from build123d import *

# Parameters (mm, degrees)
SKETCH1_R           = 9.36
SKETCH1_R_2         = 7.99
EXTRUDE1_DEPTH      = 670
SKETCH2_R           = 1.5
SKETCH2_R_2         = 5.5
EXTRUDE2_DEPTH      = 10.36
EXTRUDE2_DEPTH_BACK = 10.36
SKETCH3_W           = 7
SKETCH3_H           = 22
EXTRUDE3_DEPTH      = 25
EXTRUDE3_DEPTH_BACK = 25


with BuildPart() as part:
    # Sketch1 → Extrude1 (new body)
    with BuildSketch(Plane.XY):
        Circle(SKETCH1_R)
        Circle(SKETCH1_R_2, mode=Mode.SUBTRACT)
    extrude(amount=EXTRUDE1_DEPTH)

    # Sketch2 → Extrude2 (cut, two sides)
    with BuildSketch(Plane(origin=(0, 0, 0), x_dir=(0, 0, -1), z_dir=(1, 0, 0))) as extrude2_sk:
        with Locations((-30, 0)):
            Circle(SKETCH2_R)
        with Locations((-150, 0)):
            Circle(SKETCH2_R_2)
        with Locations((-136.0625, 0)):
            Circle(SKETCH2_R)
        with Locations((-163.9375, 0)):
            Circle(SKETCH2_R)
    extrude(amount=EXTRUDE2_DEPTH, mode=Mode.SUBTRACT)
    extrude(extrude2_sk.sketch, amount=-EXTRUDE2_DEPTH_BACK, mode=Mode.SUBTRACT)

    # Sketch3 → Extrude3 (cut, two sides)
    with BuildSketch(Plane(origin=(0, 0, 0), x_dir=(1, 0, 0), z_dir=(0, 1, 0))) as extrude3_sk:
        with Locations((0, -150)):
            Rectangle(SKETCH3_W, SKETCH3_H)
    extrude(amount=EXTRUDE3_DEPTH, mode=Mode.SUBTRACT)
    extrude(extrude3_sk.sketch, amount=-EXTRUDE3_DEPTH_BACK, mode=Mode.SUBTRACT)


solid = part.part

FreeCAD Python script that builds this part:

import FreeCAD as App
import Part
import Sketcher
from FreeCAD import Vector
Q = App.Units.Quantity

doc = App.newDocument("Part")
params = doc.addObject("Spreadsheet::Sheet", "Params")
for row, (alias, value) in enumerate([
    ("sketch1_diameter", "18.72 mm"),
    ("sketch1_diameter2", "15.98 mm"),
    ("pad1_length", "670 mm"),
    ("sketch2_diameter", "3 mm"),
    ("sketch2_diameter2", "11 mm"),
    ("sketch3_width", "7 mm"),
    ("sketch3_height", "22 mm"),
], start=1):
    params.set(f"A{row}", alias)
    params.set(f"B{row}", "=" + value)
    params.setAlias(f"B{row}", alias)

body = doc.addObject("PartDesign::Body", "Body")

# Sketch on XY plane
sketch1 = body.newObject("Sketcher::SketchObject", "Sketch")
sketch1.AttachmentSupport = (doc.getObject("XY_Plane"), [""])
sketch1.MapMode = "FlatFace"
sketch1.addGeometry([
    Part.Circle(Vector(0, 0, 0), Vector(0, 0, 1), 9),
    Part.Circle(Vector(0, 0, 0), Vector(0, 0, 1), 8),
], False)
sketch1.addConstraint([
    Sketcher.Constraint("Coincident", 0, 3, -1, 1),
    Sketcher.Constraint("Coincident", 1, 3, -1, 1),
    Sketcher.Constraint("Diameter", 0, Q("18.72 mm")),
    Sketcher.Constraint("Diameter", 1, Q("15.98 mm")),
])
sketch1.setExpression("Constraints[2]", "Params.sketch1_diameter")
sketch1.setExpression("Constraints[3]", "Params.sketch1_diameter2")
pad1 = body.newObject("PartDesign::Pad", "Pad")
pad1.Profile = sketch1
pad1.setExpression("Length", "Params.pad1_length")

# Sketch on YZ plane
sketch2 = body.newObject("Sketcher::SketchObject", "Sketch001")
sketch2.AttachmentSupport = (doc.getObject("YZ_Plane"), [""])
sketch2.MapMode = "FlatFace"
sketch2.addGeometry([
    Part.Circle(Vector(0, 30, 0), Vector(0, 0, 1), 1.5),
    Part.Circle(Vector(0, 150, 0), Vector(0, 0, 1), 5.5),
    Part.Circle(Vector(0, 136.1, 0), Vector(0, 0, 1), 1.5),
    Part.Circle(Vector(0, 163.9, 0), Vector(0, 0, 1), 1.5),
], False)
sketch2.addConstraint([
    Sketcher.Constraint("Equal", 0, 2),
    Sketcher.Constraint("Equal", 2, 3),
    Sketcher.Constraint("PointOnObject", 0, 3, -2),
    Sketcher.Constraint("PointOnObject", 1, 3, -2),
    Sketcher.Constraint("PointOnObject", 2, 3, -2),
    Sketcher.Constraint("PointOnObject", 3, 3, -2),
    Sketcher.Constraint("Diameter", 0, Q("3 mm")),
    Sketcher.Constraint("Diameter", 1, Q("11 mm")),
    Sketcher.Constraint("DistanceY", -1, 1, 0, 3, Q("30 mm")),
    Sketcher.Constraint("DistanceY", -1, 1, 1, 3, Q("150 mm")),
    Sketcher.Constraint("DistanceY", 2, 3, 3, 3, Q("27.875 mm")),
    Sketcher.Constraint("DistanceY", -1, 1, 2, 3, Q("136.0625 mm")),
])
sketch2.setExpression("Constraints[6]", "Params.sketch2_diameter")
sketch2.setExpression("Constraints[7]", "Params.sketch2_diameter2")
pocket1 = body.newObject("PartDesign::Pocket", "Pocket")
pocket1.Profile = sketch2
pocket1.Type = "ThroughAll"
pocket1.Midplane = True

# Sketch on XZ plane
sketch3 = body.newObject("Sketcher::SketchObject", "Sketch002")
sketch3.AttachmentSupport = (doc.getObject("XZ_Plane"), [""])
sketch3.MapMode = "FlatFace"
sketch3.addGeometry([
    Part.LineSegment(Vector(-4, 139, 0), Vector(-4, 161, 0)),
    Part.LineSegment(Vector(-4, 161, 0), Vector(4, 161, 0)),
    Part.LineSegment(Vector(4, 161, 0), Vector(4, 139, 0)),
    Part.LineSegment(Vector(4, 139, 0), Vector(-4, 139, 0)),
], False)
sketch3.addConstraint([
    Sketcher.Constraint("Coincident", 0, 2, 1, 1),
    Sketcher.Constraint("Coincident", 1, 2, 2, 1),
    Sketcher.Constraint("Coincident", 2, 2, 3, 1),
    Sketcher.Constraint("Coincident", 3, 2, 0, 1),
    Sketcher.Constraint("Vertical", 0),
    Sketcher.Constraint("Horizontal", 1),
    Sketcher.Constraint("Vertical", 2),
    Sketcher.Constraint("Horizontal", 3),
    Sketcher.Constraint("DistanceX", 1, 1, 1, 2, Q("7 mm")),
    Sketcher.Constraint("DistanceY", 0, 1, 0, 2, Q("22 mm")),
    Sketcher.Constraint("DistanceY", -1, 1, 0, 2, Q("161 mm")),
    Sketcher.Constraint("DistanceX", 0, 2, -1, 1, Q("3.5 mm")),
])
sketch3.setExpression("Constraints[8]", "Params.sketch3_width")
sketch3.setExpression("Constraints[9]", "Params.sketch3_height")
pocket2 = body.newObject("PartDesign::Pocket", "Pocket001")
pocket2.Profile = sketch3
pocket2.Type = "ThroughAll"
pocket2.Midplane = True

doc.recompute()
